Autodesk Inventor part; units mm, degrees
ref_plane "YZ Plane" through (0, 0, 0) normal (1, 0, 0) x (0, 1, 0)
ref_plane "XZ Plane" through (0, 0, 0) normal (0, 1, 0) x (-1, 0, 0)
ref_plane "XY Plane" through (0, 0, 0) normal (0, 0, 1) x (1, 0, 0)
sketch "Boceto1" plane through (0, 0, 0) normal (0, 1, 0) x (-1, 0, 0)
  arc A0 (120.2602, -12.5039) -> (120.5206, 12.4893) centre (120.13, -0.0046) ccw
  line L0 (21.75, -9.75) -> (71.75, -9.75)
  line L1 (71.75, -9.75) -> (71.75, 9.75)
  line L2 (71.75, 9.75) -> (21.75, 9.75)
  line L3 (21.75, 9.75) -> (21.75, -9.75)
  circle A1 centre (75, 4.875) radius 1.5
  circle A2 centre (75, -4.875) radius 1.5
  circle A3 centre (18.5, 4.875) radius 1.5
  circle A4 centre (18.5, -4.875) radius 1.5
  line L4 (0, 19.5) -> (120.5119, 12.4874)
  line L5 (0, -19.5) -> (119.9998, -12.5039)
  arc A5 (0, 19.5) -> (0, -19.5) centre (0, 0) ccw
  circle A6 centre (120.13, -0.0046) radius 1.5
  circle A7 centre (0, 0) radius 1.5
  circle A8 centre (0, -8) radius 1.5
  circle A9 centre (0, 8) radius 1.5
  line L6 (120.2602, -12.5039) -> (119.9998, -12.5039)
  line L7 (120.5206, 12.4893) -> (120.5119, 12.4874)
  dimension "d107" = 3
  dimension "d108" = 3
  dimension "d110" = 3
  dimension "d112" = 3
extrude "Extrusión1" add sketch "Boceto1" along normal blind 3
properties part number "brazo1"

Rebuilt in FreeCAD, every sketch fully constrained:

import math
import FreeCAD as App
import Part
import Sketcher
from FreeCAD import Vector

doc = App.newDocument("Part")
body = doc.addObject("PartDesign::Body", "Body")

# Sketch on XZ plane
sketch1 = body.newObject("Sketcher::SketchObject", "Sketch")
sketch1.AttachmentSupport = (doc.getObject("XZ_Plane"), [""])
sketch1.MapMode = "FlatFace"
sketch1.addGeometry([
    Part.LineSegment(Vector(-119.9998, -12.5039, 0), Vector(-120.2602, -12.5039, 0)),  # 0
    Part.ArcOfCircle(Part.Circle(Vector(-120.13, -0.0046, 0), Vector(0, 0, 1), 12.499978), math.radians(91.790669), math.radians(269.403195)),  # 1
    Part.LineSegment(Vector(-120.5206, 12.4893, 0), Vector(-120.5119, 12.4874, 0)),  # 2
    Part.LineSegment(Vector(-120.5119, 12.4874, 0), Vector(0, 19.5, 0)),  # 3
    Part.ArcOfCircle(Part.Circle(Vector(0, 0, 0), Vector(0, 0, 1), 19.5), math.radians(-90), math.radians(90)),  # 4
    Part.LineSegment(Vector(0, -19.5, 0), Vector(-119.9998, -12.5039, 0)),  # 5
    Part.Circle(Vector(0, -8, 0), Vector(0, 0, 1), 1.5),  # 6
    Part.Circle(Vector(-18.5, -4.875, 0), Vector(0, 0, 1), 1.5),  # 7
    Part.Circle(Vector(-75, -4.875, 0), Vector(0, 0, 1), 1.5),  # 8
    Part.Circle(Vector(-120.13, -0.0046, 0), Vector(0, 0, 1), 1.5),  # 9
    Part.Circle(Vector(0, 0, 0), Vector(0, 0, 1), 1.5),  # 10
    Part.Circle(Vector(-18.5, 4.875, 0), Vector(0, 0, 1), 1.5),  # 11
    Part.Circle(Vector(0, 8, 0), Vector(0, 0, 1), 1.5),  # 12
    Part.LineSegment(Vector(-71.75, -9.75, 0), Vector(-21.75, -9.75, 0)),  # 13
    Part.LineSegment(Vector(-21.75, -9.75, 0), Vector(-21.75, 9.75, 0)),  # 14
    Part.LineSegment(Vector(-21.75, 9.75, 0), Vector(-71.75, 9.75, 0)),  # 15
    Part.LineSegment(Vector(-71.75, 9.75, 0), Vector(-71.75, -9.75, 0)),  # 16
    Part.Circle(Vector(-75, 4.875, 0), Vector(0, 0, 1), 1.5),  # 17
], False)
sketch1.addConstraint([
    Sketcher.Constraint("Coincident", 0, 2, 1, 2),
    Sketcher.Constraint("Coincident", 1, 1, 2, 1),
    Sketcher.Constraint("Coincident", 2, 2, 3, 1),
    Sketcher.Constraint("Coincident", 3, 2, 4, 2),
    Sketcher.Constraint("Coincident", 4, 1, 5, 1),
    Sketcher.Constraint("Coincident", 5, 2, 0, 1),
    Sketcher.Constraint("Coincident", 13, 2, 14, 1),
    Sketcher.Constraint("Coincident", 14, 2, 15, 1),
    Sketcher.Constraint("Coincident", 15, 2, 16, 1),
    Sketcher.Constraint("Coincident", 16, 2, 13, 1),
    Sketcher.Constraint("Horizontal", 0),
    Sketcher.Constraint("Horizontal", 13),
    Sketcher.Constraint("Vertical", 14),
    Sketcher.Constraint("Horizontal", 15),
    Sketcher.Constraint("Vertical", 16),
    Sketcher.Constraint("Coincident", 4, 3, -1, 1),
    Sketcher.Constraint("Coincident", 10, 3, -1, 1),
    Sketcher.Constraint("Coincident", 9, 3, 1, 3),
    Sketcher.Constraint("PointOnObject", 6, 3, -2),
    Sketcher.Constraint("PointOnObject", 12, 3, -2),
    Sketcher.Constraint("PointOnObject", 3, 2, -2),
    Sketcher.Constraint("PointOnObject", 4, 1, -2),
    Sketcher.Constraint("Diameter", 6, 3.0),
    Sketcher.Constraint("Diameter", 7, 3.0),
    Sketcher.Constraint("Diameter", 8, 3.0),
    Sketcher.Constraint("Diameter", 9, 3.0),
    Sketcher.Constraint("Diameter", 10, 3.0),
    Sketcher.Constraint("Diameter", 11, 3.0),
    Sketcher.Constraint("Diameter", 12, 3.0),
    Sketcher.Constraint("Diameter", 17, 3.0),
    Sketcher.Constraint("Radius", 1, 12.5),
    Sketcher.Constraint("Radius", 4, 19.5),
    Sketcher.Constraint("DistanceX", 13, 1, 13, 2, 50.0),
    Sketcher.Constraint("DistanceY", 14, 1, 14, 2, 19.5),
    Sketcher.Constraint("DistanceY", 6, 3, -1, 1, 8.0),
    Sketcher.Constraint("DistanceX", 8, 3, -1, 1, 75.0),
    Sketcher.Constraint("DistanceY", -1, 1, 12, 3, 8.0),
    Sketcher.Constraint("DistanceX", 17, 3, -1, 1, 75.0),
    Sketcher.Constraint("DistanceX", 7, 3, -1, 1, 18.5),
    Sketcher.Constraint("DistanceX", 11, 3, -1, 1, 18.5),
    Sketcher.Constraint("DistanceX", 1, 3, -1, 1, 120.13),
    Sketcher.Constraint("DistanceX", 13, 2, -1, 1, 21.75),
    Sketcher.Constraint("DistanceY", 13, 2, -1, 1, 9.75),
    Sketcher.Constraint("DistanceY", 7, 3, 11, 3, 9.75),
    Sketcher.Constraint("DistanceY", 8, 3, 11, 3, 9.75),
    Sketcher.Constraint("DistanceY", 8, 3, 17, 3, 9.75),
    Sketcher.Constraint("Distance", 2, 0.009),
    Sketcher.Constraint("DistanceX", 0, 2, 0, 1, 0.2604),
    Sketcher.Constraint("DistanceY", 7, 3, -1, 1, 4.875),
    Sketcher.Constraint("DistanceY", 0, 2, -1, 1, 12.504),
    Sketcher.Constraint("DistanceX", 2, 2, -1, 1, 120.512),
    Sketcher.Constraint("DistanceY", 1, 3, 2, 2, 12.492),
    Sketcher.Constraint("DistanceX", 2, 2, 5, 2, 0.512),
])
pad1 = body.newObject("PartDesign::Pad", "Pad")
pad1.Profile = sketch1
pad1.Length = 3
pad1.Reversed = True

doc.recompute()
